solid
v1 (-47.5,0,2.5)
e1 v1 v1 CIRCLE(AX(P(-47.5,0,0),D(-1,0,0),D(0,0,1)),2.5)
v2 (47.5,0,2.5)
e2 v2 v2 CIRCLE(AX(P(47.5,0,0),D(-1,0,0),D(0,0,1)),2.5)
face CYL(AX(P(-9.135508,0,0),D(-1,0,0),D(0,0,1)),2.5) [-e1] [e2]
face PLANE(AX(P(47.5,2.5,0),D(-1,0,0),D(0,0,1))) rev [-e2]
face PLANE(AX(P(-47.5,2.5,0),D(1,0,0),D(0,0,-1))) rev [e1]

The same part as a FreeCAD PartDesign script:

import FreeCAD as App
import Part
import Sketcher
from FreeCAD import Vector


def add_polygon(sketch, points):
    """Adds a closed chain of lines whose ends are joined by coincident constraints."""
    first, n = sketch.GeometryCount, len(points)
    for a, b in zip(points, points[1:] + points[:1]):
        sketch.addGeometry(Part.LineSegment(App.Vector(*a, 0), App.Vector(*b, 0)), False)
    for i in range(n):
        sketch.addConstraint(Sketcher.Constraint("Coincident", first + i, 2, first + (i + 1) % n, 1))

doc = App.newDocument("Part")
body = doc.addObject("PartDesign::Body", "Body")

sketch1 = body.newObject("Sketcher::SketchObject", "Sketch")
sketch1.AttachmentSupport = (doc.getObject("XY_Plane"), [""])
sketch1.MapMode = "FlatFace"
add_polygon(sketch1, [(-47.5, 2.5), (-47.5, 0), (47.5, 0), (47.5, 2.5)])
sketch1.addConstraint(Sketcher.Constraint("Vertical", 0))
sketch1.addConstraint(Sketcher.Constraint("Horizontal", 1))
sketch1.addConstraint(Sketcher.Constraint("Vertical", 2))
sketch1.addConstraint(Sketcher.Constraint("Horizontal", 3))
sketch1.addConstraint(Sketcher.Constraint("Symmetric", 0, 2, 1, 2, -1, 1))
sketch1.addConstraint(Sketcher.Constraint("DistanceX", 1, 1, 1, 2, 95.0))
sketch1.addConstraint(Sketcher.Constraint("DistanceY", 0, 2, 0, 1, 2.5))
revolution = body.newObject("PartDesign::Revolution", "Revolution")
revolution.Profile = sketch1
revolution.ReferenceAxis = (sketch1, ["H_Axis"])
revolution.Angle = 360

doc.recompute()
